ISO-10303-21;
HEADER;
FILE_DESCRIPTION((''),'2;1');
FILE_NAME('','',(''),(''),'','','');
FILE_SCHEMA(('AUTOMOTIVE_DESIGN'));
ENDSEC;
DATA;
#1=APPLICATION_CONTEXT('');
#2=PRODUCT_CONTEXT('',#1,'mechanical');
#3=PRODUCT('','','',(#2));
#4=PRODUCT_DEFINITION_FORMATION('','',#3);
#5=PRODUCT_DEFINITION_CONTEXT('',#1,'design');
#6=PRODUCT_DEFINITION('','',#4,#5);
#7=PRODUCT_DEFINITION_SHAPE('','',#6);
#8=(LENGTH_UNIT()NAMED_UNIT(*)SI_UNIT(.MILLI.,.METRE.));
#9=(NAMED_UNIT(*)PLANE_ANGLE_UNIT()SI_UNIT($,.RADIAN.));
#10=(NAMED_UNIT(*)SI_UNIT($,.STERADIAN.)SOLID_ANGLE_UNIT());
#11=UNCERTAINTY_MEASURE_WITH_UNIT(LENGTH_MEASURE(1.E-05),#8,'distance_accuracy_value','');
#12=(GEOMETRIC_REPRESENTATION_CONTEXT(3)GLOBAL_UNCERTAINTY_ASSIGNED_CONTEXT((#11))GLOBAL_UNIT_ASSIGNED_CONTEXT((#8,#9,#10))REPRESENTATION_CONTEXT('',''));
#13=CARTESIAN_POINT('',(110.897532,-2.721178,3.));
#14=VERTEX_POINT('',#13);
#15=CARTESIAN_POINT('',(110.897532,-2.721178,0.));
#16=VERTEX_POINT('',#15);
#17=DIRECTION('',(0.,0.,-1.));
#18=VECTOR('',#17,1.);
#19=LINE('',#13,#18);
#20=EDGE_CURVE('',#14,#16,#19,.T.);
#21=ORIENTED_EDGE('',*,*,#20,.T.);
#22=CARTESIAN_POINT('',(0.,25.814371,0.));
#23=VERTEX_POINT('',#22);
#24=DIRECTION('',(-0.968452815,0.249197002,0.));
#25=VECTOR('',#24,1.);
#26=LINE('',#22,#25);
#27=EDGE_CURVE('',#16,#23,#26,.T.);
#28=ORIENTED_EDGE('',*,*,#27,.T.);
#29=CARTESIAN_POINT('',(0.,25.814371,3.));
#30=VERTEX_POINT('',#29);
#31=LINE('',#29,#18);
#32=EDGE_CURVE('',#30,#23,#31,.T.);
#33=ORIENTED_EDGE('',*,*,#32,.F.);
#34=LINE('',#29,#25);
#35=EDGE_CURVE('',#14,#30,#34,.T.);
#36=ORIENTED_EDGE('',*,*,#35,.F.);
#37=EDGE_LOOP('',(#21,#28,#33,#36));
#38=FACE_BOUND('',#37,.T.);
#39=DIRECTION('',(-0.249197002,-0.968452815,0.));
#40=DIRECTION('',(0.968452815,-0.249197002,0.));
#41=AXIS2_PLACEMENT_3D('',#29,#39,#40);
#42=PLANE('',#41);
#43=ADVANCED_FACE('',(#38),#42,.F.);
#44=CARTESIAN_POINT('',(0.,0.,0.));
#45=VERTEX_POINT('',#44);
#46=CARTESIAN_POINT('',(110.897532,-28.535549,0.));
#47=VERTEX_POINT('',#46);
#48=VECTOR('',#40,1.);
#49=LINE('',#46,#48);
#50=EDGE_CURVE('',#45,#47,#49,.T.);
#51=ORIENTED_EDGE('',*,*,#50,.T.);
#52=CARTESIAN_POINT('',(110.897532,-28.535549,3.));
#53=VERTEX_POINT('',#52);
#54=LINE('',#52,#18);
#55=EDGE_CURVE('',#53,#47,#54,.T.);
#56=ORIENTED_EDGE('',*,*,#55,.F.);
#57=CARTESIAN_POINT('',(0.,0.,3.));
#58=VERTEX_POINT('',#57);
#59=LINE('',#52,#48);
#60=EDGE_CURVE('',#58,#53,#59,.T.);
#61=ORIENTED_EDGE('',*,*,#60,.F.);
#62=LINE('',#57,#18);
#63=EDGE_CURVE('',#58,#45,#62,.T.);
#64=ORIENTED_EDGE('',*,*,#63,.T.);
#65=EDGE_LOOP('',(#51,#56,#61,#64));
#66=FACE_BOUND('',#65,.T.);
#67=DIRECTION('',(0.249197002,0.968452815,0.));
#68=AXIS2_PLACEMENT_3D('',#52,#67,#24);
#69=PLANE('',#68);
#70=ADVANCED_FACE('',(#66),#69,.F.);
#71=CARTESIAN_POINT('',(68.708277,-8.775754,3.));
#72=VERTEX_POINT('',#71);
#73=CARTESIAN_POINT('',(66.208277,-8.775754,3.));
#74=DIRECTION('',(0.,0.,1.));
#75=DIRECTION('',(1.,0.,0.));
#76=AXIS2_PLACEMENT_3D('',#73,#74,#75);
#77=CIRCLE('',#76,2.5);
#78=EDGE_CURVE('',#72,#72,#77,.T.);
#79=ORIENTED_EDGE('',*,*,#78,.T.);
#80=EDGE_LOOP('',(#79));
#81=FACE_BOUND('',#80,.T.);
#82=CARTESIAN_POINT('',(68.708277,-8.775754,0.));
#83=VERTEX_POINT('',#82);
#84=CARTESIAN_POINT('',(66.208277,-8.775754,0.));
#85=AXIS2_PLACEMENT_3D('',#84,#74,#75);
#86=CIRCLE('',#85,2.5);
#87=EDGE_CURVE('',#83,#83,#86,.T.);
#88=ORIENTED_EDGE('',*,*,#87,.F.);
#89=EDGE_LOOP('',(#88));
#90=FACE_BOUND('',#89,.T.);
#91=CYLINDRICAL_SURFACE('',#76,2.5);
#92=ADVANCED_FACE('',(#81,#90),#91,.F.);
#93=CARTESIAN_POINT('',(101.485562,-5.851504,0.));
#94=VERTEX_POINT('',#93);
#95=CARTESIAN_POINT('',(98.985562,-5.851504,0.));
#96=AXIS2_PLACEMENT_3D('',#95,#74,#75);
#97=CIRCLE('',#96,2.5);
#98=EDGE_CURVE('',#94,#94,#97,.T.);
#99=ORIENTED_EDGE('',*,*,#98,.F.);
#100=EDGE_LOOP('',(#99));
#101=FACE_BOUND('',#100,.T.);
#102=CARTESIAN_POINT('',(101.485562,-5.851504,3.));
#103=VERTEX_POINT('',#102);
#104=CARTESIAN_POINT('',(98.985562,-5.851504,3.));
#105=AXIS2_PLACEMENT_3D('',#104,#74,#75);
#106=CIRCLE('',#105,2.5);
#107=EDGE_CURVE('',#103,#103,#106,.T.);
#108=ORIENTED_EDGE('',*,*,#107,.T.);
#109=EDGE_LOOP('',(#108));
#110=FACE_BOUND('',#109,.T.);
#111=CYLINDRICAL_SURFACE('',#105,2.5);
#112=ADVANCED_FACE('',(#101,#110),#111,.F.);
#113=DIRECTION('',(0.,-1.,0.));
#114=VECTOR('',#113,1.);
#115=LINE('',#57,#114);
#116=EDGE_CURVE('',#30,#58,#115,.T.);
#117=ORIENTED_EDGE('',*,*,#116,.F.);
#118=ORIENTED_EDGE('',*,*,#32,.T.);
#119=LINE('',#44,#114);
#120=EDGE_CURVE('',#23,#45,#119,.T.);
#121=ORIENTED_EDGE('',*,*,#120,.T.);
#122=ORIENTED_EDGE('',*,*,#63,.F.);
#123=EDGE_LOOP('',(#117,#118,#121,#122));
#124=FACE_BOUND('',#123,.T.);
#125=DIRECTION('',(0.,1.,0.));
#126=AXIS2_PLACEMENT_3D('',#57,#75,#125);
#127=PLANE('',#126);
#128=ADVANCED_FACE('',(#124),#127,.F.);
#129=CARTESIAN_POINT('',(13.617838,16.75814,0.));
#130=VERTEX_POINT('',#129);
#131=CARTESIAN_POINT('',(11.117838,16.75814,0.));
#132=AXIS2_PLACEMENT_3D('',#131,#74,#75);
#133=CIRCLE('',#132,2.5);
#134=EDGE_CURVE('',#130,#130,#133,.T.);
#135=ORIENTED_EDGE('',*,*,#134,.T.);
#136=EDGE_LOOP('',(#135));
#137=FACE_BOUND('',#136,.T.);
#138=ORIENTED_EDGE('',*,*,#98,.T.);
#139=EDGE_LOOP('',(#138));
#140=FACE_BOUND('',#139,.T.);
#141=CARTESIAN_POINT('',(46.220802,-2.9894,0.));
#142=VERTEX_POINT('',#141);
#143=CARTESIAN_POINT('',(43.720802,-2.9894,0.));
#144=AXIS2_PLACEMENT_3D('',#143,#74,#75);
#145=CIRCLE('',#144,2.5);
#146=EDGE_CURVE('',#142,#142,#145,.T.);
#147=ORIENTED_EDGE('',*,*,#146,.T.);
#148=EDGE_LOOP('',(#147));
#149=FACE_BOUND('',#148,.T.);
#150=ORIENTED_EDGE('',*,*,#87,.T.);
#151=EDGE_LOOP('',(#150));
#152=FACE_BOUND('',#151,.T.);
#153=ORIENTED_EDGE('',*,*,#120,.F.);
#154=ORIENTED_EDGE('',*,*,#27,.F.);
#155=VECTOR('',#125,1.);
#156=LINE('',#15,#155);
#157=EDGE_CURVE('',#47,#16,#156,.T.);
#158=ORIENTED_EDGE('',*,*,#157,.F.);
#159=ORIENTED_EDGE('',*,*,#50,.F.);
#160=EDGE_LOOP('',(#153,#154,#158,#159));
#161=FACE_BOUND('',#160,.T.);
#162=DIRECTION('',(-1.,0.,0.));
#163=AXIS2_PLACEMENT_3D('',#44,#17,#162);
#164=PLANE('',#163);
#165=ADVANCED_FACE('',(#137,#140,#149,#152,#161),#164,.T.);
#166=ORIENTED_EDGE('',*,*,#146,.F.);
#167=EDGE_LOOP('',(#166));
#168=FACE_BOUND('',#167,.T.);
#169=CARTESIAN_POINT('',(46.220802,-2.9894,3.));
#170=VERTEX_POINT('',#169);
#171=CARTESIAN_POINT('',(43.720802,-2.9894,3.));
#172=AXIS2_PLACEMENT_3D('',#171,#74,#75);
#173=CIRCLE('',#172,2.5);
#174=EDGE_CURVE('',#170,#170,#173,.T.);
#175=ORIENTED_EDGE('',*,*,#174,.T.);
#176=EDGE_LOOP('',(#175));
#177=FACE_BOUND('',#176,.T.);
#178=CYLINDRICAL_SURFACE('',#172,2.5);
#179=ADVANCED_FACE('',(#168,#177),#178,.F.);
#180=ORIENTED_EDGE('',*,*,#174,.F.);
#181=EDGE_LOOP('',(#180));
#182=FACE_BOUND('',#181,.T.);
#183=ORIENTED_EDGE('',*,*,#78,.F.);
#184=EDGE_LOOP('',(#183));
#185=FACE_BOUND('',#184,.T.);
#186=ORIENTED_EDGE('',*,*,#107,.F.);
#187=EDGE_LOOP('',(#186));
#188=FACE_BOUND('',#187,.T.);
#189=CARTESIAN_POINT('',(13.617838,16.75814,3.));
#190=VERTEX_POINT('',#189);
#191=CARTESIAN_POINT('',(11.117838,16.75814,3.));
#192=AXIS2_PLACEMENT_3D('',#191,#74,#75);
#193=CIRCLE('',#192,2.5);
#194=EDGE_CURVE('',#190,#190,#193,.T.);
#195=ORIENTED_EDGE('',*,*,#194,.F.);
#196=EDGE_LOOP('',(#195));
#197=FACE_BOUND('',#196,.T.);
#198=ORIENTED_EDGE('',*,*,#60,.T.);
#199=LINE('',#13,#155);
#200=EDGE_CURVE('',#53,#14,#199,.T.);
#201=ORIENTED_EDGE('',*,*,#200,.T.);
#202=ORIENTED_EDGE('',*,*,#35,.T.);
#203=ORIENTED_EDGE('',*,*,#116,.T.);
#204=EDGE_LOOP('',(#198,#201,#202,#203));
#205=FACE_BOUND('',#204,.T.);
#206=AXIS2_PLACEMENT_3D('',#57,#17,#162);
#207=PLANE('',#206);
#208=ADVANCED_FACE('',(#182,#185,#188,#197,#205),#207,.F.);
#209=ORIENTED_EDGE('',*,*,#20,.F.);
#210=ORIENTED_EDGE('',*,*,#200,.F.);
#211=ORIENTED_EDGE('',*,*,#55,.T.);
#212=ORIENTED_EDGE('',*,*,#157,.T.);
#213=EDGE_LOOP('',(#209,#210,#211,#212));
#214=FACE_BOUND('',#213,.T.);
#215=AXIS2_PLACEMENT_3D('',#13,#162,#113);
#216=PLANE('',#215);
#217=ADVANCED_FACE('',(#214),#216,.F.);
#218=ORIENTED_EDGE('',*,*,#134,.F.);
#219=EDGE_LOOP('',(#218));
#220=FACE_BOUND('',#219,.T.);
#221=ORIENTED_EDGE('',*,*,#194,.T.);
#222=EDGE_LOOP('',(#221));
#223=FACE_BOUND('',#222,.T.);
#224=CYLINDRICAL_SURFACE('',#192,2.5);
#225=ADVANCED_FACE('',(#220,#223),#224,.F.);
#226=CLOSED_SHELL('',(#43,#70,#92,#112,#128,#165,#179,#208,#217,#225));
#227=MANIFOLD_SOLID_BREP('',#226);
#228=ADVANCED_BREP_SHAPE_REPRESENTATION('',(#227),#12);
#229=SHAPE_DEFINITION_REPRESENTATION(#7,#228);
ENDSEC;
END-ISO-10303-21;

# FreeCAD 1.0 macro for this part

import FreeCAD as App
import Part
import Sketcher
Q = App.Units.Quantity

doc = App.newDocument("Part")
params = doc.addObject("Spreadsheet::Sheet", "Params")
for row, (alias, value) in enumerate([
    ("sketch1_length", "114.51 mm"),
    ("pad1_length", "3 mm"),
    ("sketch2_diameter", "5 mm"),
    ("hole_diameter", "5 mm"),
], start=1):
    params.set(f"A{row}", alias)
    params.set(f"B{row}", "=" + value)
    params.setAlias(f"B{row}", alias)

body = doc.addObject("PartDesign::Body", "Body")

# Sketch on XY plane
sketch1 = body.newObject("Sketcher::SketchObject", "Sketch")
sketch1.AttachmentSupport = (doc.getObject("XY_Plane"), [""])
sketch1.MapMode = "FlatFace"
sketch1.addGeometry([
    Part.LineSegment(App.Vector(0, 26, 0), App.Vector(0, 0, 0)),
    Part.LineSegment(App.Vector(0, 0, 0), App.Vector(111, -29, 0)),
    Part.LineSegment(App.Vector(111, -29, 0), App.Vector(111, -3, 0)),
    Part.LineSegment(App.Vector(111, -3, 0), App.Vector(0, 26, 0)),
], False)
sketch1.addConstraint([
    Sketcher.Constraint("Coincident", 0, 2, 1, 1),
    Sketcher.Constraint("Coincident", 1, 2, 2, 1),
    Sketcher.Constraint("Coincident", 2, 2, 3, 1),
    Sketcher.Constraint("Coincident", 3, 2, 0, 1),
    Sketcher.Constraint("Vertical", 0),
    Sketcher.Constraint("Vertical", 2),
    Sketcher.Constraint("Coincident", 0, 2, -1, 1),
    Sketcher.Constraint("Parallel", 1, 3),
    Sketcher.Constraint("Angle", 1, Q("-14.43 deg")),
    Sketcher.Constraint("Distance", 1, Q("114.51 mm")),
    Sketcher.Constraint("DistanceY", 0, 2, 0, 1, Q("25.814371 mm")),
])
sketch1.setExpression("Constraints[9]", "Params.sketch1_length")
pad1 = body.newObject("PartDesign::Pad", "Pad")
pad1.Profile = sketch1
pad1.setExpression("Length", "Params.pad1_length")

# Sketch on XY plane
sketch2 = body.newObject("Sketcher::SketchObject", "Sketch001")
sketch2.AttachmentSupport = (doc.getObject("XY_Plane"), [""])
sketch2.MapMode = "FlatFace"
sketch2.AttachmentOffset = App.Placement(App.Vector(0, 0, 3), App.Rotation())
sketch2.addGeometry([
    Part.Circle(App.Vector(11.1, 16.8, 0), App.Vector(0, 0, 1), 2.5),
    Part.Circle(App.Vector(43.7, -3, 0), App.Vector(0, 0, 1), 2.5),
    Part.Circle(App.Vector(66.2, -8.8, 0), App.Vector(0, 0, 1), 2.5),
    Part.Circle(App.Vector(99, -5.9, 0), App.Vector(0, 0, 1), 2.5),
], False)
sketch2.addConstraint([
    Sketcher.Constraint("Equal", 0, 1),
    Sketcher.Constraint("Equal", 1, 2),
    Sketcher.Constraint("Equal", 2, 3),
    Sketcher.Constraint("Diameter", 0, Q("5 mm")),
    Sketcher.Constraint("DistanceY", 1, 3, -1, 1, Q("2.9894 mm")),
    Sketcher.Constraint("DistanceX", -1, 1, 0, 3, Q("11.117838 mm")),
    Sketcher.Constraint("DistanceY", -1, 1, 0, 3, Q("16.75814 mm")),
    Sketcher.Constraint("DistanceX", 0, 3, 2, 3, Q("55.090438 mm")),
    Sketcher.Constraint("DistanceY", 2, 3, 3, 3, Q("2.924251 mm")),
    Sketcher.Constraint("DistanceX", 1, 3, 3, 3, Q("55.26476 mm")),
    Sketcher.Constraint("DistanceX", -1, 1, 1, 3, Q("43.720802 mm")),
    Sketcher.Constraint("DistanceY", 2, 3, -1, 1, Q("8.775754 mm")),
])
sketch2.setExpression("Constraints[3]", "Params.sketch2_diameter")
doc.recompute()
hole = body.newObject("PartDesign::Hole", "Hole")
hole.Profile = sketch2
hole.ThreadType = "None"
hole.setExpression("Diameter", "Params.hole_diameter")
hole.DepthType = "ThroughAll"

doc.recompute()
